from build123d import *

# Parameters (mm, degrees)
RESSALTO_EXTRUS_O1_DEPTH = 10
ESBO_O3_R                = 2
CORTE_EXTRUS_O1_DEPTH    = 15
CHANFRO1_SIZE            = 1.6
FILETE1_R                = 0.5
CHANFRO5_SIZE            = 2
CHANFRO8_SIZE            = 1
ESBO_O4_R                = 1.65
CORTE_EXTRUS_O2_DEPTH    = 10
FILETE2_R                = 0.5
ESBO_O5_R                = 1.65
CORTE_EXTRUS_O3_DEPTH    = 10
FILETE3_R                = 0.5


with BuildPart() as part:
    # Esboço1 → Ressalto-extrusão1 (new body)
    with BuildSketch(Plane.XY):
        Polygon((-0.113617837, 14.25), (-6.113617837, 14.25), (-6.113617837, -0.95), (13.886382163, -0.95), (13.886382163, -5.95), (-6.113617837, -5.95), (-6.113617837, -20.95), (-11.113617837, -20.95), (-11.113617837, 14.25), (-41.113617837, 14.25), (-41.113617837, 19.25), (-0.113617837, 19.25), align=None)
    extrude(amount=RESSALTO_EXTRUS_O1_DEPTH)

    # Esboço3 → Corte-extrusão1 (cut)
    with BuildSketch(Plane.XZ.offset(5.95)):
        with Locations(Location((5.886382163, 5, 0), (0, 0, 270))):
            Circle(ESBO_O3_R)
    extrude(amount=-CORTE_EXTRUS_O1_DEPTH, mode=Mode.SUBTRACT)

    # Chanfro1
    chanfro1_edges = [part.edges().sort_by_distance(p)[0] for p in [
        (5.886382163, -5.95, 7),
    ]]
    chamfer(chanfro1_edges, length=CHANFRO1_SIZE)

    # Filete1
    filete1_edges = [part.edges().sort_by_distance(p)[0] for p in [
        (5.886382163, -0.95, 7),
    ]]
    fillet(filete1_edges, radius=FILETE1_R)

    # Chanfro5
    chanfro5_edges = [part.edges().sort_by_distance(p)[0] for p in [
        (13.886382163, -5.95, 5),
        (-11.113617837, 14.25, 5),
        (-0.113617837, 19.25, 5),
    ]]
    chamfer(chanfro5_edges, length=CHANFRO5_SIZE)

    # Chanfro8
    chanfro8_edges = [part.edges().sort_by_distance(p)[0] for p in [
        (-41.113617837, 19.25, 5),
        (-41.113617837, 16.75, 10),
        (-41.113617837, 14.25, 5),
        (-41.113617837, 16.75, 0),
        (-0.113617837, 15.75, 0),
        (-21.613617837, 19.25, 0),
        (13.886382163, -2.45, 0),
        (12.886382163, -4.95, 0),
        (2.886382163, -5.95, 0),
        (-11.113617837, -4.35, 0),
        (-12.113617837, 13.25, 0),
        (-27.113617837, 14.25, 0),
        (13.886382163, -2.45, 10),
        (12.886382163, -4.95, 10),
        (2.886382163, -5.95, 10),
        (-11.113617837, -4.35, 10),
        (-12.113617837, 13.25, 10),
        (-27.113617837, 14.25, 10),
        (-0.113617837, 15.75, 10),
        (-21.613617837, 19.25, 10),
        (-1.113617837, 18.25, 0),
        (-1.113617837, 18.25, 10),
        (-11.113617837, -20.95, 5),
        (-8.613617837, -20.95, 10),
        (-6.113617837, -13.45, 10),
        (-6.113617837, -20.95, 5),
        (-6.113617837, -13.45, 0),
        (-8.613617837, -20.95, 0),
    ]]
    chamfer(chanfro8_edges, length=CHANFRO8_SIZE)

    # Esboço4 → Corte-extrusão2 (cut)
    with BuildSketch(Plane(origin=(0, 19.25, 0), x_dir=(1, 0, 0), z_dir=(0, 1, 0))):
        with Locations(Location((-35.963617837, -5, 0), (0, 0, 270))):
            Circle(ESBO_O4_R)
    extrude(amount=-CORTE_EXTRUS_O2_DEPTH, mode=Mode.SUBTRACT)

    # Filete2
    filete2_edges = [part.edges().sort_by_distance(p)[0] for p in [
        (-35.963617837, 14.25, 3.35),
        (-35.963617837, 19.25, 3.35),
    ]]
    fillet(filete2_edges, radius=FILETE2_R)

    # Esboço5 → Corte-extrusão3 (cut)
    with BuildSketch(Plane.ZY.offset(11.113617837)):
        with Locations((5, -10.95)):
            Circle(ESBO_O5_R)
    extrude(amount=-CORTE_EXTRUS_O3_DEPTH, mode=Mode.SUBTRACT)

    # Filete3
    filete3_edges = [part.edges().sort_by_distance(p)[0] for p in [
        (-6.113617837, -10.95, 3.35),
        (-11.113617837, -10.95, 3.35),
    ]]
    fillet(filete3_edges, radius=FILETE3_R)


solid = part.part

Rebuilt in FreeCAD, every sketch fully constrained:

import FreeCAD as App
import Part
import Sketcher
from FreeCAD import Vector


def edges_at(feature, points):
    """Names of the edges that pass closest to the given points."""
    edges = feature.Shape.Edges
    near = lambda p: min(range(len(edges)), key=lambda i: edges[i].distToShape(Part.Vertex(*p))[0])
    return sorted({f"Edge{near(p) + 1}" for p in points})

doc = App.newDocument("Part")
body = doc.addObject("PartDesign::Body", "Body")

# Sketch on XY plane
sketch1 = body.newObject("Sketcher::SketchObject", "Sketch")
sketch1.AttachmentSupport = (doc.getObject("XY_Plane"), [""])
sketch1.MapMode = "FlatFace"
sketch1.addGeometry([
    Part.LineSegment(Vector(-6, 14, 0), Vector(0, 14, 0)),  # 0
    Part.LineSegment(Vector(0, 14, 0), Vector(0, 19, 0)),  # 1
    Part.LineSegment(Vector(0, 19, 0), Vector(-41, 19, 0)),  # 2
    Part.LineSegment(Vector(-41, 19, 0), Vector(-41, 14, 0)),  # 3
    Part.LineSegment(Vector(-41, 14, 0), Vector(-11, 14, 0)),  # 4
    Part.LineSegment(Vector(-11, 14, 0), Vector(-11, -21, 0)),  # 5
    Part.LineSegment(Vector(-11, -21, 0), Vector(-6, -21, 0)),  # 6
    Part.LineSegment(Vector(-6, -21, 0), Vector(-6, -6, 0)),  # 7
    Part.LineSegment(Vector(-6, -6, 0), Vector(14, -6, 0)),  # 8
    Part.LineSegment(Vector(14, -6, 0), Vector(14, -1, 0)),  # 9
    Part.LineSegment(Vector(14, -1, 0), Vector(-6, -1, 0)),  # 10
    Part.LineSegment(Vector(-6, -1, 0), Vector(-6, 14, 0)),  # 11
], False)
sketch1.addConstraint([
    Sketcher.Constraint("Coincident", 0, 2, 1, 1),
    Sketcher.Constraint("Coincident", 1, 2, 2, 1),
    Sketcher.Constraint("Coincident", 2, 2, 3, 1),
    Sketcher.Constraint("Coincident", 3, 2, 4, 1),
    Sketcher.Constraint("Coincident", 4, 2, 5, 1),
    Sketcher.Constraint("Coincident", 5, 2, 6, 1),
    Sketcher.Constraint("Coincident", 6, 2, 7, 1),
    Sketcher.Constraint("Coincident", 7, 2, 8, 1),
    Sketcher.Constraint("Coincident", 8, 2, 9, 1),
    Sketcher.Constraint("Coincident", 9, 2, 10, 1),
    Sketcher.Constraint("Coincident", 10, 2, 11, 1),
    Sketcher.Constraint("Coincident", 11, 2, 0, 1),
    Sketcher.Constraint("Horizontal", 0),
    Sketcher.Constraint("Vertical", 1),
    Sketcher.Constraint("Horizontal", 2),
    Sketcher.Constraint("Vertical", 3),
    Sketcher.Constraint("Horizontal", 4),
    Sketcher.Constraint("Vertical", 5),
    Sketcher.Constraint("Horizontal", 6),
    Sketcher.Constraint("Vertical", 7),
    Sketcher.Constraint("Horizontal", 8),
    Sketcher.Constraint("Vertical", 9),
    Sketcher.Constraint("Horizontal", 10),
    Sketcher.Constraint("Vertical", 11),
    Sketcher.Constraint("Horizontal", 0, 2, 3, 2),
    Sketcher.Constraint("Vertical", 7, 2, 10, 2),
    Sketcher.Constraint("Equal", 6, 1),
    Sketcher.Constraint("Equal", 3, 9),
    Sketcher.Constraint("DistanceX", 0, 1, 0, 2, 6.0),
    Sketcher.Constraint("DistanceX", 2, 2, 2, 1, 41.0),
    Sketcher.Constraint("DistanceX", 4, 1, 4, 2, 30.0),
    Sketcher.Constraint("DistanceX", 8, 1, 8, 2, 20.0),
    Sketcher.Constraint("DistanceY", 7, 1, 7, 2, 15.0),
    Sketcher.Constraint("DistanceY", 5, 2, 5, 1, 35.2),
    Sketcher.Constraint("DistanceY", -1, 1, 0, 2, 14.25),
    Sketcher.Constraint("DistanceX", 0, 2, -1, 1, 0.113618),
])
pad1 = body.newObject("PartDesign::Pad", "Pad")
pad1.Profile = sketch1
pad1.Length = 10

# Sketch on XZ plane
sketch2 = body.newObject("Sketcher::SketchObject", "Sketch001")
sketch2.AttachmentSupport = (doc.getObject("XZ_Plane"), [""])
sketch2.MapMode = "FlatFace"
sketch2.AttachmentOffset = App.Placement(Vector(0, 0, 5.95), App.Rotation())
sketch2.addGeometry(Part.Circle(Vector(5.9, 5, 0), Vector(0, 0, 1), 2), False)
sketch2.addConstraint([
    Sketcher.Constraint("Diameter", 0, 4.0),
    Sketcher.Constraint("DistanceY", -1, 1, 0, 3, 5.0),
    Sketcher.Constraint("DistanceX", -1, 1, 0, 3, 5.886382),
])
pocket1 = body.newObject("PartDesign::Pocket", "Pocket")
pocket1.Profile = sketch2
pocket1.Length = 15
doc.recompute()

chamfer = body.newObject("PartDesign::Chamfer", "Chamfer")
chamfer.Base = (pocket1, edges_at(pocket1, [(5.886, -5.95, 7)]))
chamfer.Size = 1.6
doc.recompute()

fillet = body.newObject("PartDesign::Fillet", "Fillet")
fillet.Base = (chamfer, edges_at(chamfer, [(5.886, -0.95, 7)]))
fillet.Radius = 0.5
doc.recompute()

chamfer2 = body.newObject("PartDesign::Chamfer", "Chamfer001")
chamfer2.Base = (fillet, edges_at(fillet, [(13.886, -5.95, 5), (-11.114, 14.25, 5), (-0.114, 19.25, 5)]))
chamfer2.Size = 2
doc.recompute()

chamfer3 = body.newObject("PartDesign::Chamfer", "Chamfer002")
chamfer3.Base = (chamfer2, edges_at(chamfer2, [
    (-41.114, 19.25, 5),
    (-41.114, 16.75, 10),
    (-41.114, 14.25, 5),
    (-41.114, 16.75, 0),
    (-0.114, 15.75, 0),
    (-21.614, 19.25, 0),
    (13.886, -2.45, 0),
    (12.886, -4.95, 0),
    (2.886, -5.95, 0),
    (-11.114, -4.35, 0),
    (-12.114, 13.25, 0),
    (-27.114, 14.25, 0),
    (13.886, -2.45, 10),
    (12.886, -4.95, 10),
    (2.886, -5.95, 10),
    (-11.114, -4.35, 10),
    (-12.114, 13.25, 10),
    (-27.114, 14.25, 10),
    (-0.114, 15.75, 10),
    (-21.614, 19.25, 10),
    (-1.114, 18.25, 0),
    (-1.114, 18.25, 10),
    (-11.114, -20.95, 5),
    (-8.614, -20.95, 10),
    (-6.114, -13.45, 10),
    (-6.114, -20.95, 5),
    (-6.114, -13.45, 0),
    (-8.614, -20.95, 0),
]))
chamfer3.Size = 1

# Sketch on XZ plane
sketch3 = body.newObject("Sketcher::SketchObject", "Sketch002")
sketch3.AttachmentSupport = (doc.getObject("XZ_Plane"), [""])
sketch3.MapMode = "FlatFace"
sketch3.AttachmentOffset = App.Placement(Vector(0, 0, -19.25), App.Rotation())
sketch3.addGeometry(Part.Circle(Vector(-36, 5, 0), Vector(0, 0, 1), 1.6), False)
sketch3.addConstraint([
    Sketcher.Constraint("Diameter", 0, 3.3),
    Sketcher.Constraint("DistanceY", -1, 1, 0, 3, 5.0),
    Sketcher.Constraint("DistanceX", 0, 3, -1, 1, 35.963618),
])
pocket2 = body.newObject("PartDesign::Pocket", "Pocket001")
pocket2.Profile = sketch3
pocket2.Length = 10
pocket2.Reversed = True
doc.recompute()

fillet2 = body.newObject("PartDesign::Fillet", "Fillet001")
fillet2.Base = (pocket2, edges_at(pocket2, [(-35.964, 14.25, 3.35), (-35.964, 19.25, 3.35)]))
fillet2.Radius = 0.5

# Sketch on YZ plane
sketch4 = body.newObject("Sketcher::SketchObject", "Sketch003")
sketch4.AttachmentSupport = (doc.getObject("YZ_Plane"), [""])
sketch4.MapMode = "FlatFace"
sketch4.AttachmentOffset = App.Placement(Vector(0, 0, -11.113618), App.Rotation())
sketch4.addGeometry(Part.Circle(Vector(-10.9, 5, 0), Vector(0, 0, 1), 1.6), False)
sketch4.addConstraint([
    Sketcher.Constraint("Diameter", 0, 3.3),
    Sketcher.Constraint("DistanceY", -1, 1, 0, 3, 5.0),
    Sketcher.Constraint("DistanceX", 0, 3, -1, 1, 10.95),
])
pocket3 = body.newObject("PartDesign::Pocket", "Pocket002")
pocket3.Profile = sketch4
pocket3.Length = 10
pocket3.Reversed = True
doc.recompute()

fillet3 = body.newObject("PartDesign::Fillet", "Fillet002")
fillet3.Base = (pocket3, edges_at(pocket3, [(-6.114, -10.95, 3.35), (-11.114, -10.95, 3.35)]))
fillet3.Radius = 0.5

doc.recompute()
